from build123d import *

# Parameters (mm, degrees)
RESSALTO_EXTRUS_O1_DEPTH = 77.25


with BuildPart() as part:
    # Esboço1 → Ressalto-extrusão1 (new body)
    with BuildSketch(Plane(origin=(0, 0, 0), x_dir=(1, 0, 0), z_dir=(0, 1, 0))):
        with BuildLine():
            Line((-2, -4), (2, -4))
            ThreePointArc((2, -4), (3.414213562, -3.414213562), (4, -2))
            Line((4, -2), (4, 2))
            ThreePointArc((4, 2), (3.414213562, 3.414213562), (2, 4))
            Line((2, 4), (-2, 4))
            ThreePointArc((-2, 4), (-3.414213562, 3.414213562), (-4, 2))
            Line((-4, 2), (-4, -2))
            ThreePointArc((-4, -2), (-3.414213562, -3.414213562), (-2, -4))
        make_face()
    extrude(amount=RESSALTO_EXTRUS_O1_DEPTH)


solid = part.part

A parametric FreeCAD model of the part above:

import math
import FreeCAD as App
import Part
import Sketcher

V = App.Vector
Q = App.Units.Quantity

doc = App.newDocument("Part")
body = doc.addObject("PartDesign::Body", "Body")

# Sketch on XZ plane
sketch1 = body.newObject("Sketcher::SketchObject", "Sketch")
sketch1.AttachmentSupport = (doc.getObject("XZ_Plane"), [""])
sketch1.MapMode = "FlatFace"
sketch1.addGeometry([
    Part.LineSegment(V(-2, 4, 0), V(2, 4, 0)),  # 0
    Part.ArcOfCircle(Part.Circle(V(2, 2, 0), V(0, 0, 1), 2), math.radians(0), math.radians(90)),  # 1
    Part.LineSegment(V(4, 2, 0), V(4, -2, 0)),  # 2
    Part.ArcOfCircle(Part.Circle(V(2, -2, 0), V(0, 0, 1), 2), math.radians(-90), math.radians(0)),  # 3
    Part.LineSegment(V(2, -4, 0), V(-2, -4, 0)),  # 4
    Part.ArcOfCircle(Part.Circle(V(-2, -2, 0), V(0, 0, 1), 2), math.radians(-180), math.radians(-90)),  # 5
    Part.LineSegment(V(-4, -2, 0), V(-4, 2, 0)),  # 6
    Part.ArcOfCircle(Part.Circle(V(-2, 2, 0), V(0, 0, 1), 2), math.radians(90), math.radians(180)),  # 7
], False)
sketch1.addConstraint([
    Sketcher.Constraint("Tangent", 0, 2, 1, 2),
    Sketcher.Constraint("Tangent", 1, 1, 2, 1),
    Sketcher.Constraint("Tangent", 2, 2, 3, 2),
    Sketcher.Constraint("Tangent", 3, 1, 4, 1),
    Sketcher.Constraint("Tangent", 4, 2, 5, 2),
    Sketcher.Constraint("Tangent", 5, 1, 6, 1),
    Sketcher.Constraint("Tangent", 6, 2, 7, 2),
    Sketcher.Constraint("Tangent", 7, 1, 0, 1),
    Sketcher.Constraint("Horizontal", 0),
    Sketcher.Constraint("Vertical", 2),
    Sketcher.Constraint("Horizontal", 4),
    Sketcher.Constraint("Vertical", 6),
    Sketcher.Constraint("Equal", 1, 3),
    Sketcher.Constraint("Equal", 3, 5),
    Sketcher.Constraint("Equal", 5, 7),
    Sketcher.Constraint("Symmetric", 1, 3, 5, 3, -1, 1),
    Sketcher.Constraint("Equal", 4, 2),
    Sketcher.Constraint("Radius", 1, Q("2 mm")),
    Sketcher.Constraint("DistanceX", 0, 1, 0, 2, Q("4 mm")),
])
pad1 = body.newObject("PartDesign::Pad", "Pad")
pad1.Profile = sketch1
pad1.Length = 77.25
pad1.Reversed = True

doc.recompute()
